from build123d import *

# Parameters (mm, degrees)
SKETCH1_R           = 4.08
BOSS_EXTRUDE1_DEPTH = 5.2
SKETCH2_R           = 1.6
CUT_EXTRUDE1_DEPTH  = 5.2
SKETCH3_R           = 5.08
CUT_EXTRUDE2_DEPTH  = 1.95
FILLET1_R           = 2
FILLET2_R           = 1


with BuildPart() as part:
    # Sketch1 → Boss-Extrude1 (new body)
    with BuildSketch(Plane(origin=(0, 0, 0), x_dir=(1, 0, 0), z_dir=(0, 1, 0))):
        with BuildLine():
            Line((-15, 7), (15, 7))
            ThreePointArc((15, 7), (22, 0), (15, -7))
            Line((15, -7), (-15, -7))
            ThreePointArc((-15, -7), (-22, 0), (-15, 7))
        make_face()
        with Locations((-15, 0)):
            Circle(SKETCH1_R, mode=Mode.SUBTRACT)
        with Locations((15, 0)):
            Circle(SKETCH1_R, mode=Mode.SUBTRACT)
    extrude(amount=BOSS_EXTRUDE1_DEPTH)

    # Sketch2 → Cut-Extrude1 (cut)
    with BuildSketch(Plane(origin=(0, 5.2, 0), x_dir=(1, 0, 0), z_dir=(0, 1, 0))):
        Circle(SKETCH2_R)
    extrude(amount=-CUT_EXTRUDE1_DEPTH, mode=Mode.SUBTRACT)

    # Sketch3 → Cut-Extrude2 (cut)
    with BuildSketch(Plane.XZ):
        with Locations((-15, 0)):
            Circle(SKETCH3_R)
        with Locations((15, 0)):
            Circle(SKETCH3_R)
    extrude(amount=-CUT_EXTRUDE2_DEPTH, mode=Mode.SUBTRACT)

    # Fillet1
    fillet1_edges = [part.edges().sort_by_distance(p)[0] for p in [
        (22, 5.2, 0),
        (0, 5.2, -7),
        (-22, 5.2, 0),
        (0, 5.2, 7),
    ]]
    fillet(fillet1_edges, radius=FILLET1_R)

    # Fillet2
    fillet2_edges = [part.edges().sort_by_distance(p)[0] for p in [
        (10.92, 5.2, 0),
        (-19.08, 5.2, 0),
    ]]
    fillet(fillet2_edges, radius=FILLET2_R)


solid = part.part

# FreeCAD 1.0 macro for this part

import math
import FreeCAD as App
import Part
import Sketcher

V = App.Vector


def edges_at(feature, points):
    """Names of the edges that pass closest to the given points."""
    edges = feature.Shape.Edges
    near = lambda p: min(range(len(edges)), key=lambda i: edges[i].distToShape(Part.Vertex(*p))[0])
    return sorted({f"Edge{near(p) + 1}" for p in points})

doc = App.newDocument("Part")
body = doc.addObject("PartDesign::Body", "Body")

sketch1 = doc.addObject("Sketcher::SketchObject", "Sketch")
body.addObject(sketch1)
sketch1.AttachmentSupport = (doc.XZ_Plane, [""])
sketch1.MapMode = "FlatFace"
sketch1.addGeometry([
    Part.LineSegment(V(15, -7, 0), V(-15, -7, 0)),
    Part.ArcOfCircle(Part.Circle(V(-15, 0, 0), V(0, 0, 1), 7), math.radians(90), math.radians(270)),
    Part.LineSegment(V(-15, 7, 0), V(15, 7, 0)),
    Part.ArcOfCircle(Part.Circle(V(15, 0, 0), V(0, 0, 1), 7), math.radians(-90), math.radians(90)),
    Part.Circle(V(15, 0, 0), V(0, 0, 1), 4.1),
    Part.Circle(V(-15, 0, 0), V(0, 0, 1), 4.1),
], False)
sketch1.addConstraint([
    Sketcher.Constraint("Tangent", 0, 2, 1, 2),
    Sketcher.Constraint("Tangent", 1, 1, 2, 1),
    Sketcher.Constraint("Tangent", 2, 2, 3, 2),
    Sketcher.Constraint("Tangent", 3, 1, 0, 1),
    Sketcher.Constraint("Horizontal", 0),
    Sketcher.Constraint("Horizontal", 2),
    Sketcher.Constraint("Coincident", 4, 3, 3, 3),
    Sketcher.Constraint("Coincident", 5, 3, 1, 3),
    Sketcher.Constraint("Equal", 4, 5),
    Sketcher.Constraint("Symmetric", 1, 3, 3, 3, -1, 1),
    Sketcher.Constraint("Radius", 1, 7.0),
    Sketcher.Constraint("Diameter", 4, 8.16),
    Sketcher.Constraint("DistanceX", 0, 2, 0, 1, 30.0),
])
pad1 = doc.addObject("PartDesign::Pad", "Pad")
body.addObject(pad1)
pad1.Profile = sketch1
pad1.Length = 5.2
pad1.Reversed = True

sketch2 = doc.addObject("Sketcher::SketchObject", "Sketch001")
body.addObject(sketch2)
sketch2.AttachmentSupport = (doc.XZ_Plane, [""])
sketch2.MapMode = "FlatFace"
sketch2.AttachmentOffset = App.Placement(V(0, 0, -5.2), App.Rotation())
sketch2.addGeometry(Part.Circle(V(0, 0, 0), V(0, 0, 1), 1.6), False)
sketch2.addConstraint([
    Sketcher.Constraint("Coincident", 0, 3, -1, 1),
    Sketcher.Constraint("Diameter", 0, 3.2),
])
pocket1 = doc.addObject("PartDesign::Pocket", "Pocket")
body.addObject(pocket1)
pocket1.Profile = sketch2
pocket1.Length = 5.2
pocket1.Reversed = True

sketch3 = doc.addObject("Sketcher::SketchObject", "Sketch002")
body.addObject(sketch3)
sketch3.AttachmentSupport = (doc.XZ_Plane, [""])
sketch3.MapMode = "FlatFace"
sketch3.addGeometry([
    Part.Circle(V(-15, 0, 0), V(0, 0, 1), 5),
    Part.Circle(V(15, 0, 0), V(0, 0, 1), 5),
], False)
sketch3.addConstraint([
    Sketcher.Constraint("Equal", 0, 1),
    Sketcher.Constraint("Symmetric", 0, 3, 1, 3, -1, 1),
    Sketcher.Constraint("PointOnObject", 0, 3, -1),
    Sketcher.Constraint("Diameter", 0, 10.16),
    Sketcher.Constraint("DistanceX", 0, 3, -1, 1, 15.0),
])
pocket2 = doc.addObject("PartDesign::Pocket", "Pocket001")
body.addObject(pocket2)
pocket2.Profile = sketch3
pocket2.Length = 1.95
doc.recompute()

fillet = doc.addObject("PartDesign::Fillet", "Fillet")
body.addObject(fillet)
fillet.Base = (pocket2, edges_at(pocket2, [
    (22, 5.2, 0),
    (0, 5.2, -7),
    (-22, 5.2, 0),
    (0, 5.2, 7),
]))
fillet.Radius = 2
doc.recompute()

fillet2 = doc.addObject("PartDesign::Fillet", "Fillet001")
body.addObject(fillet2)
fillet2.Base = (fillet, edges_at(fillet, [(10.92, 5.2, 0), (-19.08, 5.2, 0)]))
fillet2.Radius = 1

doc.recompute()
